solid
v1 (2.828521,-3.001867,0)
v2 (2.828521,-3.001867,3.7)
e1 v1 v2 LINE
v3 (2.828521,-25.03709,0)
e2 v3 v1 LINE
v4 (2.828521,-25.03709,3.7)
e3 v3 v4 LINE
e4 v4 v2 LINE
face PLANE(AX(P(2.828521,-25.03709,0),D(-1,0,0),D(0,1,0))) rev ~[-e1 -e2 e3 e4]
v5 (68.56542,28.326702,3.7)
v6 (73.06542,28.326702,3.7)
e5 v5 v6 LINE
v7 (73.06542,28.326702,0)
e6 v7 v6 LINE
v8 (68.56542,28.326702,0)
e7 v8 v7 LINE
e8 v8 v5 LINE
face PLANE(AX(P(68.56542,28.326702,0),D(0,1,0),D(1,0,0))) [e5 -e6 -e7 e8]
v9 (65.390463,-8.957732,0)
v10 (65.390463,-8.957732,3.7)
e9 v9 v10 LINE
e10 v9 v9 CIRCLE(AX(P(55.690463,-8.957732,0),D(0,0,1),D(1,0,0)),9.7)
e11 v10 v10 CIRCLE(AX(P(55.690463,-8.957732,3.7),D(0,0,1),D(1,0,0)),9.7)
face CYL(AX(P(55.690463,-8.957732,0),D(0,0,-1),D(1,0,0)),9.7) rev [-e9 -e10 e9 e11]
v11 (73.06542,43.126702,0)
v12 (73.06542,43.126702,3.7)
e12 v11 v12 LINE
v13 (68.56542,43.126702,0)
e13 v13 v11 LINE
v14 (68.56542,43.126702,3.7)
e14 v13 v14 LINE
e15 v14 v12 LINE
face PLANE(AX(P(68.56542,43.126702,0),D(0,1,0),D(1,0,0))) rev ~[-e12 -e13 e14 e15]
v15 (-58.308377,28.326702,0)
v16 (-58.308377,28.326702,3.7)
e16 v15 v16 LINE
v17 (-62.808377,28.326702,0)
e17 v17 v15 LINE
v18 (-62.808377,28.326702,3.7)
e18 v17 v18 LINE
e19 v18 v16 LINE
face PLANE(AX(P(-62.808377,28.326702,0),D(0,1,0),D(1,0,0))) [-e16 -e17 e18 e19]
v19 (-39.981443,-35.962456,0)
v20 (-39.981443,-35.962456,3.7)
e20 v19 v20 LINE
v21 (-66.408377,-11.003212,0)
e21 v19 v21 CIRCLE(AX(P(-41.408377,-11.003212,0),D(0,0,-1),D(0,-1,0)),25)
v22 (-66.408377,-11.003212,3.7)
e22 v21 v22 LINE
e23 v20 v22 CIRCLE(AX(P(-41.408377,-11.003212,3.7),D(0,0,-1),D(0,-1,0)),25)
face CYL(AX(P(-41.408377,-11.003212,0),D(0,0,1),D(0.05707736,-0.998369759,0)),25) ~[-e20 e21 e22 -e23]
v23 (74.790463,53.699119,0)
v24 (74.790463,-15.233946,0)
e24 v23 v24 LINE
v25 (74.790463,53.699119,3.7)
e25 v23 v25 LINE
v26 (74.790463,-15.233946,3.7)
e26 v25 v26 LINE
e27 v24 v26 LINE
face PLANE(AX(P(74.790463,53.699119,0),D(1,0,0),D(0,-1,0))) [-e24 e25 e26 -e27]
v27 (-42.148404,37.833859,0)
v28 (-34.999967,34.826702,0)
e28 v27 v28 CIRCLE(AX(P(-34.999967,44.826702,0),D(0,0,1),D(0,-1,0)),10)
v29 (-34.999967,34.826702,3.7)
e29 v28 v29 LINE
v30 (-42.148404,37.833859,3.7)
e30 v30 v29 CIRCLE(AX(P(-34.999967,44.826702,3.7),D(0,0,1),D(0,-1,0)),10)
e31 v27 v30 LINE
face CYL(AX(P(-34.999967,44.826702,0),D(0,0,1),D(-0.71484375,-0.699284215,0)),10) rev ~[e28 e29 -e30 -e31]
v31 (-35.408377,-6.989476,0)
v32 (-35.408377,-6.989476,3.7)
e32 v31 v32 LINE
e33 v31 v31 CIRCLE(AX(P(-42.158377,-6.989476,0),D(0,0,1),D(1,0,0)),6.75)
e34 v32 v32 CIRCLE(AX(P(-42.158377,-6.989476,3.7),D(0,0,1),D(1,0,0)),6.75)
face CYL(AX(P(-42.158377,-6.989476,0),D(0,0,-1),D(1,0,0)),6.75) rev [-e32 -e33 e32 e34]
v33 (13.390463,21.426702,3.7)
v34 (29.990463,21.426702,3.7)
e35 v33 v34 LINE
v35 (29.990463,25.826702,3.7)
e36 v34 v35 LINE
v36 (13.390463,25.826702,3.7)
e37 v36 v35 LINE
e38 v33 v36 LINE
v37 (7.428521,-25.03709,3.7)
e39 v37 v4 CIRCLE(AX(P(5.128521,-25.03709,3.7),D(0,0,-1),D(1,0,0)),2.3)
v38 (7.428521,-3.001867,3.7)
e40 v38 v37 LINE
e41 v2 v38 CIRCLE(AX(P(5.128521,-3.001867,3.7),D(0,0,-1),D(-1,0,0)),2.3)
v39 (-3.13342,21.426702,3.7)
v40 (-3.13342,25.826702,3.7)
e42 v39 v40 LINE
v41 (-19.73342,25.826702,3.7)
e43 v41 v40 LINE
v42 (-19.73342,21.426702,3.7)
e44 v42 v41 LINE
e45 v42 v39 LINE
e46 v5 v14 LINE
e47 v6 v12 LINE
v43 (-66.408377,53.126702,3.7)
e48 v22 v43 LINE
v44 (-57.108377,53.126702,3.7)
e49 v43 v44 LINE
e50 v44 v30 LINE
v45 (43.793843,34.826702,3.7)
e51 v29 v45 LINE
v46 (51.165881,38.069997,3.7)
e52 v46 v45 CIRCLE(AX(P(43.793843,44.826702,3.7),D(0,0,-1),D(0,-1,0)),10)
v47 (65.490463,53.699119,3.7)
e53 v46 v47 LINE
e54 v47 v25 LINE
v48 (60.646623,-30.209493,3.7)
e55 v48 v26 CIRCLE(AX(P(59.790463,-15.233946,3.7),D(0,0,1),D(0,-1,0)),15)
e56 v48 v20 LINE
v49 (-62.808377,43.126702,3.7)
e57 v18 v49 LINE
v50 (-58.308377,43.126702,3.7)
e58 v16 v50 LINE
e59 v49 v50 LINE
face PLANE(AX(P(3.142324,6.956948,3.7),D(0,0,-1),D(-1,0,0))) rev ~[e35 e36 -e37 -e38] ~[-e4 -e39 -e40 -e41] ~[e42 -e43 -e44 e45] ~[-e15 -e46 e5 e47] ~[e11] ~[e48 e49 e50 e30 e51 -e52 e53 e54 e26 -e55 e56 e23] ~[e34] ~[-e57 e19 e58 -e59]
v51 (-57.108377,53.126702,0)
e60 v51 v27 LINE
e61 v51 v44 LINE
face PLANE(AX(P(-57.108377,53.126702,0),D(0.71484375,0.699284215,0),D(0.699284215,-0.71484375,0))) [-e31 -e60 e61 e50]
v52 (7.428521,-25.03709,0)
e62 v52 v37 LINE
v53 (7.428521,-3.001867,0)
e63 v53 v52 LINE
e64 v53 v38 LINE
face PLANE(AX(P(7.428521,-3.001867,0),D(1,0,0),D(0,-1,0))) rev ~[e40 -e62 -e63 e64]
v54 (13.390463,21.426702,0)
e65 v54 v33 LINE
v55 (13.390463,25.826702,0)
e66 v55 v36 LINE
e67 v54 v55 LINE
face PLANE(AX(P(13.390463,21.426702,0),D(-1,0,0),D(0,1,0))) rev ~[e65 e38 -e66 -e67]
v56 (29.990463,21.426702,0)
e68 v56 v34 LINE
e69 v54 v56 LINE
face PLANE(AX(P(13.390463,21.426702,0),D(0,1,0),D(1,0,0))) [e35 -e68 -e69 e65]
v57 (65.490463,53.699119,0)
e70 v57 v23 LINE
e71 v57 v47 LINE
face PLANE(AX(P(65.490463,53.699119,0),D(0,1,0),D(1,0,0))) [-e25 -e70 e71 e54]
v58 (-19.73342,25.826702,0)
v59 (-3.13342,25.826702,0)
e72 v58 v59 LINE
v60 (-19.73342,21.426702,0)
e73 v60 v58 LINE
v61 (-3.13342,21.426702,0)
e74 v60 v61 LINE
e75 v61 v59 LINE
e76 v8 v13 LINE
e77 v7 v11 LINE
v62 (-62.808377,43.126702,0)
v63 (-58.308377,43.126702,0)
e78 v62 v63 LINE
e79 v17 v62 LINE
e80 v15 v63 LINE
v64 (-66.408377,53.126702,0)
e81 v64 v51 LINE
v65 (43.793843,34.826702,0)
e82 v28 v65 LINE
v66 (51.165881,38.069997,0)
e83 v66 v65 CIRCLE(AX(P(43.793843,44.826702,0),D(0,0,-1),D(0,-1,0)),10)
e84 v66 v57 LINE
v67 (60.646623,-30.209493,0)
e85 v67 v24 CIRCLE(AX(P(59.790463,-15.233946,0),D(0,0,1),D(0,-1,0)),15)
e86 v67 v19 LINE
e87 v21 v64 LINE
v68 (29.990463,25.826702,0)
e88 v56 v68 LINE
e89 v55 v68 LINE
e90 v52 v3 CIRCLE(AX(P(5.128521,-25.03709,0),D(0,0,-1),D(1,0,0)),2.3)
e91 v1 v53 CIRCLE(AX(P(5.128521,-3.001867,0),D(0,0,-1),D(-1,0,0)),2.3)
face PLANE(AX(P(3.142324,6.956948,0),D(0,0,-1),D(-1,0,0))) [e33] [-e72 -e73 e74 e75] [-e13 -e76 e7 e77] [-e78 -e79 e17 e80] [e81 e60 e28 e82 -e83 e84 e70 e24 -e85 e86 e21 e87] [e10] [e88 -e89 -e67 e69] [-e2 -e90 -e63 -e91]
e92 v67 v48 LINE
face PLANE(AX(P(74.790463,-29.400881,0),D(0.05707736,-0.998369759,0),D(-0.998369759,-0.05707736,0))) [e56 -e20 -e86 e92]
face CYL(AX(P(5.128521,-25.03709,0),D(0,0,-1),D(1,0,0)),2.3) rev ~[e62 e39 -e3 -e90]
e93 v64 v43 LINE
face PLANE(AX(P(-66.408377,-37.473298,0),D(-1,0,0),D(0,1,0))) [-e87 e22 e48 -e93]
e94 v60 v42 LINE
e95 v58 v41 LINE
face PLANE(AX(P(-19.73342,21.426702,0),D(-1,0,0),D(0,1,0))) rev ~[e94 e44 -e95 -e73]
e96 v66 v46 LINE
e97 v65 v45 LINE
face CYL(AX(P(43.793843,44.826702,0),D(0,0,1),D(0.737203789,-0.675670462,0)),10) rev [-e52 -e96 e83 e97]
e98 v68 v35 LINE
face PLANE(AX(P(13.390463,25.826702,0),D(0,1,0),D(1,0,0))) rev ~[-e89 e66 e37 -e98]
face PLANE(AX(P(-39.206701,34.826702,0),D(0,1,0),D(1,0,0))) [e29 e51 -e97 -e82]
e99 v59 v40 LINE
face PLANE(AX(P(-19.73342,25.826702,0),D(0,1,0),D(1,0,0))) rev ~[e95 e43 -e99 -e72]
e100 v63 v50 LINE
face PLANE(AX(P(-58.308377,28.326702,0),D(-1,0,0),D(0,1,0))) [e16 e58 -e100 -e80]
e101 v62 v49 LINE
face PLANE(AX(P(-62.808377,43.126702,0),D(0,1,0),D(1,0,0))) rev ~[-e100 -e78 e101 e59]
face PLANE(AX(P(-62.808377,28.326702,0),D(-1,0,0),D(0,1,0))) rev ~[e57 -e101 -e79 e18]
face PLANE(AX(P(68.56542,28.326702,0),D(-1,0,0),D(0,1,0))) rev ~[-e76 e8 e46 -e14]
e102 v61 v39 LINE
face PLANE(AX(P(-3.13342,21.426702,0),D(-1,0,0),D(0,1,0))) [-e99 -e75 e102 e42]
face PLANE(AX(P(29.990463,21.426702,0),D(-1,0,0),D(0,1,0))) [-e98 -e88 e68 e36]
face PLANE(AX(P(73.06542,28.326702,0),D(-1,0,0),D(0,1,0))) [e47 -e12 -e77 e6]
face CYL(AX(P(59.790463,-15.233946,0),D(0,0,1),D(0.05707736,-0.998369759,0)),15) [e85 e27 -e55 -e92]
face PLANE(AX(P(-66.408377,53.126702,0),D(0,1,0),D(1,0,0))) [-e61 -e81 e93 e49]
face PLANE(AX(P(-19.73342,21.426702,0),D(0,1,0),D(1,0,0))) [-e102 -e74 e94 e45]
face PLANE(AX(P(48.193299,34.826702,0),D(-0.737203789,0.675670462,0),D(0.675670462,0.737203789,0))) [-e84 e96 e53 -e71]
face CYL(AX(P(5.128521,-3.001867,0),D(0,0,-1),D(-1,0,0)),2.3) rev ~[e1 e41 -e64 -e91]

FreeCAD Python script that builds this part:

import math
import FreeCAD as App
import Part
import Sketcher
from FreeCAD import Vector
Q = App.Units.Quantity


def edges_at(feature, points):
    """Names of the edges that pass closest to the given points."""
    edges = feature.Shape.Edges
    near = lambda p: min(range(len(edges)), key=lambda i: edges[i].distToShape(Part.Vertex(*p))[0])
    return sorted({f"Edge{near(p) + 1}" for p in points})


def add_polygon(sketch, points):
    """Adds a closed chain of lines whose ends are joined by coincident constraints."""
    first, n = sketch.GeometryCount, len(points)
    for a, b in zip(points, points[1:] + points[:1]):
        sketch.addGeometry(Part.LineSegment(App.Vector(*a, 0), App.Vector(*b, 0)), False)
    for i in range(n):
        sketch.addConstraint(Sketcher.Constraint("Coincident", first + i, 2, first + (i + 1) % n, 1))

doc = App.newDocument("Part")
params = doc.addObject("Spreadsheet::Sheet", "Params")
for row, (alias, value) in enumerate([
    ("sketch1_diameter", "19.4 mm"),
    ("sketch1_diameter2", "13.5 mm"),
    ("sketch1_radius", "2.3 mm"),
    ("sketch1_width", "9.3 mm"),
    ("sketch1_width2", "87.4 mm"),
    ("pad1_length", "3.7 mm"),
    ("fillet_radius", "15 mm"),
    ("fillet2_radius", "25 mm"),
    ("fillet3_radius", "10 mm"),
], start=1):
    params.set(f"A{row}", alias)
    params.set(f"B{row}", "=" + value)
    params.setAlias(f"B{row}", alias)

body = doc.addObject("PartDesign::Body", "Body")

# Sketch on XY plane
sketch1 = doc.addObject("Sketcher::SketchObject", "Sketch")
body.addObject(sketch1)
sketch1.AttachmentSupport = (doc.XY_Plane, [""])
sketch1.MapMode = "FlatFace"
add_polygon(sketch1, [(-66.408377, 53.126702), (-66.408377, -37.473298), (74.790463, -29.400881), (74.790463, 53.699119), (65.490463, 53.699119), (48.193299, 34.826702), (-39.206701, 34.826702), (-57.108377, 53.126702)])  # lines 0-7
sketch1.addGeometry(Part.Circle(Vector(55.690463, -8.957732, 0), Vector(0, 0, 1), 9.7), False)  # 8
sketch1.addGeometry(Part.LineSegment(Vector(7.428521, -3.001867, 0), Vector(7.428521, -25.03709, 0)), False)  # 9
sketch1.addGeometry(Part.ArcOfCircle(Part.Circle(Vector(5.128521, -25.03709, 0), Vector(0, 0, 1), 2.3), math.radians(180), math.radians(360)), False)  # 10
sketch1.addGeometry(Part.LineSegment(Vector(2.828521, -25.03709, 0), Vector(2.828521, -3.001867, 0)), False)  # 11
sketch1.addGeometry(Part.ArcOfCircle(Part.Circle(Vector(5.128521, -3.001867, 0), Vector(0, 0, 1), 2.3), math.radians(0), math.radians(180)), False)  # 12
sketch1.addGeometry(Part.Circle(Vector(-42.158377, -6.989476, 0), Vector(0, 0, 1), 6.75), False)  # 13
add_polygon(sketch1, [(13.390463, 21.426702), (13.390463, 25.826702), (29.990463, 25.826702), (29.990463, 21.426702)])  # lines 14-17
add_polygon(sketch1, [(68.56542, 28.326702), (68.56542, 43.126702), (73.06542, 43.126702), (73.06542, 28.326702)])  # lines 18-21
add_polygon(sketch1, [(-19.73342, 21.426702), (-19.73342, 25.826702), (-3.13342, 25.826702), (-3.13342, 21.426702)])  # lines 22-25
add_polygon(sketch1, [(-62.808377, 28.326702), (-62.808377, 43.126702), (-58.308377, 43.126702), (-58.308377, 28.326702)])  # lines 26-29
sketch1.addConstraint(Sketcher.Constraint("Tangent", 9, 2, 10, 2))
sketch1.addConstraint(Sketcher.Constraint("Tangent", 10, 1, 11, 1))
sketch1.addConstraint(Sketcher.Constraint("Tangent", 11, 2, 12, 2))
sketch1.addConstraint(Sketcher.Constraint("Tangent", 12, 1, 9, 1))
sketch1.addConstraint(Sketcher.Constraint("Vertical", 0))
sketch1.addConstraint(Sketcher.Constraint("Vertical", 2))
sketch1.addConstraint(Sketcher.Constraint("Horizontal", 3))
sketch1.addConstraint(Sketcher.Constraint("Horizontal", 5))
sketch1.addConstraint(Sketcher.Constraint("Horizontal", 7))
sketch1.addConstraint(Sketcher.Constraint("Vertical", 9))
sketch1.addConstraint(Sketcher.Constraint("Vertical", 11))
sketch1.addConstraint(Sketcher.Constraint("Vertical", 14))
sketch1.addConstraint(Sketcher.Constraint("Horizontal", 15))
sketch1.addConstraint(Sketcher.Constraint("Vertical", 16))
sketch1.addConstraint(Sketcher.Constraint("Horizontal", 17))
sketch1.addConstraint(Sketcher.Constraint("Vertical", 18))
sketch1.addConstraint(Sketcher.Constraint("Horizontal", 19))
sketch1.addConstraint(Sketcher.Constraint("Vertical", 20))
sketch1.addConstraint(Sketcher.Constraint("Horizontal", 21))
sketch1.addConstraint(Sketcher.Constraint("Vertical", 22))
sketch1.addConstraint(Sketcher.Constraint("Horizontal", 23))
sketch1.addConstraint(Sketcher.Constraint("Vertical", 24))
sketch1.addConstraint(Sketcher.Constraint("Horizontal", 25))
sketch1.addConstraint(Sketcher.Constraint("Vertical", 26))
sketch1.addConstraint(Sketcher.Constraint("Horizontal", 27))
sketch1.addConstraint(Sketcher.Constraint("Vertical", 28))
sketch1.addConstraint(Sketcher.Constraint("Horizontal", 29))
sketch1.addConstraint(Sketcher.Constraint("Horizontal", 15, 2, 22, 2))
sketch1.addConstraint(Sketcher.Constraint("Horizontal", 17, 2, 24, 2))
sketch1.addConstraint(Sketcher.Constraint("Horizontal", 19, 2, 26, 2))
sketch1.addConstraint(Sketcher.Constraint("Horizontal", 21, 2, 28, 2))
sketch1.addConstraint(Sketcher.Constraint("Equal", 3, 7))
sketch1.addConstraint(Sketcher.Constraint("Equal", 17, 23))
sketch1.addConstraint(Sketcher.Constraint("Equal", 21, 27))
sketch1.addConstraint(Sketcher.Constraint("Equal", 4, 6))
sketch1.addConstraint(Sketcher.Constraint("Diameter", 8, Q("19.4 mm")))
sketch1.addConstraint(Sketcher.Constraint("Diameter", 13, Q("13.5 mm")))
sketch1.addConstraint(Sketcher.Constraint("Radius", 10, Q("2.3 mm")))
sketch1.addConstraint(Sketcher.Constraint("DistanceX", 3, 2, 3, 1, Q("9.3 mm")))
sketch1.addConstraint(Sketcher.Constraint("DistanceX", 5, 2, 5, 1, Q("87.4 mm")))
sketch1.addConstraint(Sketcher.Constraint("DistanceX", 15, 1, 15, 2, Q("16.6 mm")))
sketch1.addConstraint(Sketcher.Constraint("DistanceX", 19, 1, 19, 2, Q("4.5 mm")))
sketch1.addConstraint(Sketcher.Constraint("DistanceY", 0, 2, 0, 1, Q("90.6 mm")))
sketch1.addConstraint(Sketcher.Constraint("DistanceY", 2, 1, 2, 2, Q("83.1 mm")))
sketch1.addConstraint(Sketcher.Constraint("DistanceY", 14, 1, 14, 2, Q("4.4 mm")))
sketch1.addConstraint(Sketcher.Constraint("DistanceY", 18, 1, 18, 2, Q("14.8 mm")))
sketch1.addConstraint(Sketcher.Constraint("DistanceY", 14, 2, 4, 2, Q("9 mm")))
sketch1.addConstraint(Sketcher.Constraint("DistanceY", 26, 2, 7, 2, Q("10 mm")))
sketch1.addConstraint(Sketcher.Constraint("Distance", 4, Q("25.6 mm")))
sketch1.addConstraint(Sketcher.Constraint("DistanceX", 8, 3, 1, 2, Q("19.1 mm")))
sketch1.addConstraint(Sketcher.Constraint("DistanceY", 0, 2, 5, 2, Q("72.3 mm")))
sketch1.addConstraint(Sketcher.Constraint("DistanceX", 7, 2, 26, 2, Q("3.6 mm")))
sketch1.addConstraint(Sketcher.Constraint("DistanceX", 0, 2, 13, 3, Q("24.25 mm")))
sketch1.addConstraint(Sketcher.Constraint("DistanceY", 0, 2, -1, 1, Q("37.473298 mm")))
sketch1.addConstraint(Sketcher.Constraint("DistanceX", -1, 1, 4, 2, Q("48.193299 mm")))
sketch1.addConstraint(Sketcher.Constraint("DistanceX", 13, 3, 12, 3, Q("47.286898 mm")))
sketch1.addConstraint(Sketcher.Constraint("DistanceY", 9, 2, 9, 1, Q("22.035223 mm")))
sketch1.addConstraint(Sketcher.Constraint("DistanceY", 8, 3, -1, 1, Q("8.957732 mm")))
sketch1.addConstraint(Sketcher.Constraint("DistanceY", 10, 3, -1, 1, Q("25.03709 mm")))
sketch1.addConstraint(Sketcher.Constraint("DistanceY", 1, 2, -1, 1, Q("29.400881 mm")))
sketch1.addConstraint(Sketcher.Constraint("DistanceX", -1, 1, 18, 2, Q("68.56542 mm")))
sketch1.addConstraint(Sketcher.Constraint("DistanceX", 22, 2, -1, 1, Q("19.73342 mm")))
sketch1.addConstraint(Sketcher.Constraint("DistanceY", 13, 3, 12, 3, Q("3.987609 mm")))
sketch1.addConstraint(Sketcher.Constraint("DistanceX", 12, 1, 14, 2, Q("5.961941 mm")))
sketch1.setExpression("Constraints[59]", "Params.sketch1_diameter")
sketch1.setExpression("Constraints[60]", "Params.sketch1_diameter2")
sketch1.setExpression("Constraints[61]", "Params.sketch1_radius")
sketch1.setExpression("Constraints[62]", "Params.sketch1_width")
sketch1.setExpression("Constraints[63]", "Params.sketch1_width2")
pad1 = doc.addObject("PartDesign::Pad", "Pad")
body.addObject(pad1)
pad1.Profile = sketch1
pad1.setExpression("Length", "Params.pad1_length")
doc.recompute()

fillet = doc.addObject("PartDesign::Fillet", "Fillet")
body.addObject(fillet)
fillet.Base = (pad1, edges_at(pad1, [(74.79, -29.401, 1.85)]))
fillet.setExpression("Radius", "Params.fillet_radius")
doc.recompute()

fillet2 = doc.addObject("PartDesign::Fillet", "Fillet001")
body.addObject(fillet2)
fillet2.Base = (fillet, edges_at(fillet, [(-66.408, -37.473, 1.85)]))
fillet2.setExpression("Radius", "Params.fillet2_radius")
doc.recompute()

fillet3 = doc.addObject("PartDesign::Fillet", "Fillet002")
body.addObject(fillet3)
fillet3.Base = (fillet2, edges_at(fillet2, [(-39.207, 34.827, 1.85), (48.193, 34.827, 1.85)]))
fillet3.setExpression("Radius", "Params.fillet3_radius")

doc.recompute()
